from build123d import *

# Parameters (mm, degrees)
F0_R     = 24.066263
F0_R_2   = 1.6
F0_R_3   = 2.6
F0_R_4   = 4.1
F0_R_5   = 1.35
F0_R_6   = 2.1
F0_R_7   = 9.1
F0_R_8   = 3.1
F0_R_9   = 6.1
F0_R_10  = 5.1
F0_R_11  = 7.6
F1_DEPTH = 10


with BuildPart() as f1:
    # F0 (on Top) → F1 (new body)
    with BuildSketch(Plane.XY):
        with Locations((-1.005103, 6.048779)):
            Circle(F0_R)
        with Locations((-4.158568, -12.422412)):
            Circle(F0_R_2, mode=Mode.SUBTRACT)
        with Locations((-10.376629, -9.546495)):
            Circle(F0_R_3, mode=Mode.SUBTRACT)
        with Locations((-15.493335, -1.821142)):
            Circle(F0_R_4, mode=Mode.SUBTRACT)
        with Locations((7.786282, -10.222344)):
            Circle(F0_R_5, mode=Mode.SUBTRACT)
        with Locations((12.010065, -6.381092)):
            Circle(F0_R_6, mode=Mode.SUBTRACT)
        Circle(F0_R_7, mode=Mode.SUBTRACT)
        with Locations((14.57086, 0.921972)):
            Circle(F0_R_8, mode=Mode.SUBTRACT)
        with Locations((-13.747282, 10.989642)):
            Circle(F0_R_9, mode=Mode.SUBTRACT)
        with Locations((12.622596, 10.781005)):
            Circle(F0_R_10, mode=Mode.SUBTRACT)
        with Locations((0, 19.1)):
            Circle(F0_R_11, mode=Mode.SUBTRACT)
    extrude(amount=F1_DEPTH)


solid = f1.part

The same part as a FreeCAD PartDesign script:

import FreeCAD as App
import Part
import Sketcher
Q = App.Units.Quantity

doc = App.newDocument("Part")
params = doc.addObject("Spreadsheet::Sheet", "Params")
for row, (alias, value) in enumerate([
    ("sketch1_diameter", "5.2 mm"),
    ("sketch1_diameter2", "3.2 mm"),
    ("sketch1_diameter3", "8.2 mm"),
    ("sketch1_diameter4", "2.7 mm"),
    ("sketch1_diameter5", "4.2 mm"),
    ("pad1_length", "10 mm"),
], start=1):
    params.set(f"A{row}", alias)
    params.set(f"B{row}", "=" + value)
    params.setAlias(f"B{row}", alias)

body = doc.addObject("PartDesign::Body", "Body")

# Sketch on XY plane
sketch1 = body.newObject("Sketcher::SketchObject", "Sketch")
sketch1.AttachmentSupport = (doc.getObject("XY_Plane"), [""])
sketch1.MapMode = "FlatFace"
sketch1.addGeometry([
    Part.Circle(App.Vector(-1, 6, 0), App.Vector(0, 0, 1), 24.1),  # 0
    Part.Circle(App.Vector(-10.4, -9.5, 0), App.Vector(0, 0, 1), 2.6),  # 1
    Part.Circle(App.Vector(-4.2, -12.4, 0), App.Vector(0, 0, 1), 1.6),  # 2
    Part.Circle(App.Vector(-15.5, -1.8, 0), App.Vector(0, 0, 1), 4.1),  # 3
    Part.Circle(App.Vector(7.8, -10.2, 0), App.Vector(0, 0, 1), 1.4),  # 4
    Part.Circle(App.Vector(12, -6.4, 0), App.Vector(0, 0, 1), 2.1),  # 5
    Part.Circle(App.Vector(0, 0, 0), App.Vector(0, 0, 1), 9.1),  # 6
    Part.Circle(App.Vector(14.6, 0.9, 0), App.Vector(0, 0, 1), 3.1),  # 7
    Part.Circle(App.Vector(-13.7, 11, 0), App.Vector(0, 0, 1), 6.1),  # 8
    Part.Circle(App.Vector(12.6, 10.8, 0), App.Vector(0, 0, 1), 5.1),  # 9
    Part.Circle(App.Vector(0, 19.1, 0), App.Vector(0, 0, 1), 7.6),  # 10
], False)
sketch1.addConstraint([
    Sketcher.Constraint("Coincident", 6, 3, -1, 1),
    Sketcher.Constraint("PointOnObject", 10, 3, -2),
    Sketcher.Constraint("Diameter", 1, Q("5.2 mm")),
    Sketcher.Constraint("Diameter", 2, Q("3.2 mm")),
    Sketcher.Constraint("Diameter", 3, Q("8.2 mm")),
    Sketcher.Constraint("Diameter", 4, Q("2.7 mm")),
    Sketcher.Constraint("Diameter", 5, Q("4.2 mm")),
    Sketcher.Constraint("Diameter", 6, Q("18.2 mm")),
    Sketcher.Constraint("Diameter", 7, Q("6.2 mm")),
    Sketcher.Constraint("Diameter", 8, Q("12.2 mm")),
    Sketcher.Constraint("Diameter", 9, Q("10.2 mm")),
    Sketcher.Constraint("Diameter", 10, Q("15.2 mm")),
    Sketcher.Constraint("DistanceY", -1, 1, 10, 3, Q("19.1 mm")),
    Sketcher.Constraint("Diameter", 0, Q("48.132526 mm")),
    Sketcher.Constraint("DistanceX", 3, 3, 5, 3, Q("27.5034 mm")),
    Sketcher.Constraint("DistanceX", 0, 3, 9, 3, Q("13.627699 mm")),
    Sketcher.Constraint("DistanceY", -1, 1, 0, 3, Q("6.048779 mm")),
    Sketcher.Constraint("DistanceX", 1, 3, -1, 1, Q("10.376629 mm")),
    Sketcher.Constraint("DistanceY", 5, 3, -1, 1, Q("6.381092 mm")),
    Sketcher.Constraint("DistanceX", -1, 1, 7, 3, Q("14.57086 mm")),
    Sketcher.Constraint("DistanceX", 1, 3, 2, 3, Q("6.218061 mm")),
    Sketcher.Constraint("DistanceY", 2, 3, 0, 3, Q("18.471191 mm")),
    Sketcher.Constraint("DistanceY", 2, 3, 3, 3, Q("10.60127 mm")),
    Sketcher.Constraint("DistanceX", 2, 3, 4, 3, Q("11.94485 mm")),
    Sketcher.Constraint("DistanceY", 4, 3, 1, 3, Q("0.675849 mm")),
    Sketcher.Constraint("DistanceY", 4, 3, 5, 3, Q("3.841252 mm")),
    Sketcher.Constraint("DistanceX", 0, 3, 5, 3, Q("13.015168 mm")),
    Sketcher.Constraint("DistanceX", 8, 3, 0, 3, Q("12.742179 mm")),
    Sketcher.Constraint("DistanceY", 4, 3, 9, 3, Q("21.003349 mm")),
    Sketcher.Constraint("DistanceY", 8, 3, 10, 3, Q("8.110358 mm")),
    Sketcher.Constraint("DistanceY", 7, 3, 10, 3, Q("18.178028 mm")),
    Sketcher.Constraint("DistanceX", 0, 3, -1, 1, Q("1.005103 mm")),
])
sketch1.setExpression("Constraints[2]", "Params.sketch1_diameter")
sketch1.setExpression("Constraints[3]", "Params.sketch1_diameter2")
sketch1.setExpression("Constraints[4]", "Params.sketch1_diameter3")
sketch1.setExpression("Constraints[5]", "Params.sketch1_diameter4")
sketch1.setExpression("Constraints[6]", "Params.sketch1_diameter5")
pad1 = body.newObject("PartDesign::Pad", "Pad")
pad1.Profile = sketch1
pad1.setExpression("Length", "Params.pad1_length")

doc.recompute()
